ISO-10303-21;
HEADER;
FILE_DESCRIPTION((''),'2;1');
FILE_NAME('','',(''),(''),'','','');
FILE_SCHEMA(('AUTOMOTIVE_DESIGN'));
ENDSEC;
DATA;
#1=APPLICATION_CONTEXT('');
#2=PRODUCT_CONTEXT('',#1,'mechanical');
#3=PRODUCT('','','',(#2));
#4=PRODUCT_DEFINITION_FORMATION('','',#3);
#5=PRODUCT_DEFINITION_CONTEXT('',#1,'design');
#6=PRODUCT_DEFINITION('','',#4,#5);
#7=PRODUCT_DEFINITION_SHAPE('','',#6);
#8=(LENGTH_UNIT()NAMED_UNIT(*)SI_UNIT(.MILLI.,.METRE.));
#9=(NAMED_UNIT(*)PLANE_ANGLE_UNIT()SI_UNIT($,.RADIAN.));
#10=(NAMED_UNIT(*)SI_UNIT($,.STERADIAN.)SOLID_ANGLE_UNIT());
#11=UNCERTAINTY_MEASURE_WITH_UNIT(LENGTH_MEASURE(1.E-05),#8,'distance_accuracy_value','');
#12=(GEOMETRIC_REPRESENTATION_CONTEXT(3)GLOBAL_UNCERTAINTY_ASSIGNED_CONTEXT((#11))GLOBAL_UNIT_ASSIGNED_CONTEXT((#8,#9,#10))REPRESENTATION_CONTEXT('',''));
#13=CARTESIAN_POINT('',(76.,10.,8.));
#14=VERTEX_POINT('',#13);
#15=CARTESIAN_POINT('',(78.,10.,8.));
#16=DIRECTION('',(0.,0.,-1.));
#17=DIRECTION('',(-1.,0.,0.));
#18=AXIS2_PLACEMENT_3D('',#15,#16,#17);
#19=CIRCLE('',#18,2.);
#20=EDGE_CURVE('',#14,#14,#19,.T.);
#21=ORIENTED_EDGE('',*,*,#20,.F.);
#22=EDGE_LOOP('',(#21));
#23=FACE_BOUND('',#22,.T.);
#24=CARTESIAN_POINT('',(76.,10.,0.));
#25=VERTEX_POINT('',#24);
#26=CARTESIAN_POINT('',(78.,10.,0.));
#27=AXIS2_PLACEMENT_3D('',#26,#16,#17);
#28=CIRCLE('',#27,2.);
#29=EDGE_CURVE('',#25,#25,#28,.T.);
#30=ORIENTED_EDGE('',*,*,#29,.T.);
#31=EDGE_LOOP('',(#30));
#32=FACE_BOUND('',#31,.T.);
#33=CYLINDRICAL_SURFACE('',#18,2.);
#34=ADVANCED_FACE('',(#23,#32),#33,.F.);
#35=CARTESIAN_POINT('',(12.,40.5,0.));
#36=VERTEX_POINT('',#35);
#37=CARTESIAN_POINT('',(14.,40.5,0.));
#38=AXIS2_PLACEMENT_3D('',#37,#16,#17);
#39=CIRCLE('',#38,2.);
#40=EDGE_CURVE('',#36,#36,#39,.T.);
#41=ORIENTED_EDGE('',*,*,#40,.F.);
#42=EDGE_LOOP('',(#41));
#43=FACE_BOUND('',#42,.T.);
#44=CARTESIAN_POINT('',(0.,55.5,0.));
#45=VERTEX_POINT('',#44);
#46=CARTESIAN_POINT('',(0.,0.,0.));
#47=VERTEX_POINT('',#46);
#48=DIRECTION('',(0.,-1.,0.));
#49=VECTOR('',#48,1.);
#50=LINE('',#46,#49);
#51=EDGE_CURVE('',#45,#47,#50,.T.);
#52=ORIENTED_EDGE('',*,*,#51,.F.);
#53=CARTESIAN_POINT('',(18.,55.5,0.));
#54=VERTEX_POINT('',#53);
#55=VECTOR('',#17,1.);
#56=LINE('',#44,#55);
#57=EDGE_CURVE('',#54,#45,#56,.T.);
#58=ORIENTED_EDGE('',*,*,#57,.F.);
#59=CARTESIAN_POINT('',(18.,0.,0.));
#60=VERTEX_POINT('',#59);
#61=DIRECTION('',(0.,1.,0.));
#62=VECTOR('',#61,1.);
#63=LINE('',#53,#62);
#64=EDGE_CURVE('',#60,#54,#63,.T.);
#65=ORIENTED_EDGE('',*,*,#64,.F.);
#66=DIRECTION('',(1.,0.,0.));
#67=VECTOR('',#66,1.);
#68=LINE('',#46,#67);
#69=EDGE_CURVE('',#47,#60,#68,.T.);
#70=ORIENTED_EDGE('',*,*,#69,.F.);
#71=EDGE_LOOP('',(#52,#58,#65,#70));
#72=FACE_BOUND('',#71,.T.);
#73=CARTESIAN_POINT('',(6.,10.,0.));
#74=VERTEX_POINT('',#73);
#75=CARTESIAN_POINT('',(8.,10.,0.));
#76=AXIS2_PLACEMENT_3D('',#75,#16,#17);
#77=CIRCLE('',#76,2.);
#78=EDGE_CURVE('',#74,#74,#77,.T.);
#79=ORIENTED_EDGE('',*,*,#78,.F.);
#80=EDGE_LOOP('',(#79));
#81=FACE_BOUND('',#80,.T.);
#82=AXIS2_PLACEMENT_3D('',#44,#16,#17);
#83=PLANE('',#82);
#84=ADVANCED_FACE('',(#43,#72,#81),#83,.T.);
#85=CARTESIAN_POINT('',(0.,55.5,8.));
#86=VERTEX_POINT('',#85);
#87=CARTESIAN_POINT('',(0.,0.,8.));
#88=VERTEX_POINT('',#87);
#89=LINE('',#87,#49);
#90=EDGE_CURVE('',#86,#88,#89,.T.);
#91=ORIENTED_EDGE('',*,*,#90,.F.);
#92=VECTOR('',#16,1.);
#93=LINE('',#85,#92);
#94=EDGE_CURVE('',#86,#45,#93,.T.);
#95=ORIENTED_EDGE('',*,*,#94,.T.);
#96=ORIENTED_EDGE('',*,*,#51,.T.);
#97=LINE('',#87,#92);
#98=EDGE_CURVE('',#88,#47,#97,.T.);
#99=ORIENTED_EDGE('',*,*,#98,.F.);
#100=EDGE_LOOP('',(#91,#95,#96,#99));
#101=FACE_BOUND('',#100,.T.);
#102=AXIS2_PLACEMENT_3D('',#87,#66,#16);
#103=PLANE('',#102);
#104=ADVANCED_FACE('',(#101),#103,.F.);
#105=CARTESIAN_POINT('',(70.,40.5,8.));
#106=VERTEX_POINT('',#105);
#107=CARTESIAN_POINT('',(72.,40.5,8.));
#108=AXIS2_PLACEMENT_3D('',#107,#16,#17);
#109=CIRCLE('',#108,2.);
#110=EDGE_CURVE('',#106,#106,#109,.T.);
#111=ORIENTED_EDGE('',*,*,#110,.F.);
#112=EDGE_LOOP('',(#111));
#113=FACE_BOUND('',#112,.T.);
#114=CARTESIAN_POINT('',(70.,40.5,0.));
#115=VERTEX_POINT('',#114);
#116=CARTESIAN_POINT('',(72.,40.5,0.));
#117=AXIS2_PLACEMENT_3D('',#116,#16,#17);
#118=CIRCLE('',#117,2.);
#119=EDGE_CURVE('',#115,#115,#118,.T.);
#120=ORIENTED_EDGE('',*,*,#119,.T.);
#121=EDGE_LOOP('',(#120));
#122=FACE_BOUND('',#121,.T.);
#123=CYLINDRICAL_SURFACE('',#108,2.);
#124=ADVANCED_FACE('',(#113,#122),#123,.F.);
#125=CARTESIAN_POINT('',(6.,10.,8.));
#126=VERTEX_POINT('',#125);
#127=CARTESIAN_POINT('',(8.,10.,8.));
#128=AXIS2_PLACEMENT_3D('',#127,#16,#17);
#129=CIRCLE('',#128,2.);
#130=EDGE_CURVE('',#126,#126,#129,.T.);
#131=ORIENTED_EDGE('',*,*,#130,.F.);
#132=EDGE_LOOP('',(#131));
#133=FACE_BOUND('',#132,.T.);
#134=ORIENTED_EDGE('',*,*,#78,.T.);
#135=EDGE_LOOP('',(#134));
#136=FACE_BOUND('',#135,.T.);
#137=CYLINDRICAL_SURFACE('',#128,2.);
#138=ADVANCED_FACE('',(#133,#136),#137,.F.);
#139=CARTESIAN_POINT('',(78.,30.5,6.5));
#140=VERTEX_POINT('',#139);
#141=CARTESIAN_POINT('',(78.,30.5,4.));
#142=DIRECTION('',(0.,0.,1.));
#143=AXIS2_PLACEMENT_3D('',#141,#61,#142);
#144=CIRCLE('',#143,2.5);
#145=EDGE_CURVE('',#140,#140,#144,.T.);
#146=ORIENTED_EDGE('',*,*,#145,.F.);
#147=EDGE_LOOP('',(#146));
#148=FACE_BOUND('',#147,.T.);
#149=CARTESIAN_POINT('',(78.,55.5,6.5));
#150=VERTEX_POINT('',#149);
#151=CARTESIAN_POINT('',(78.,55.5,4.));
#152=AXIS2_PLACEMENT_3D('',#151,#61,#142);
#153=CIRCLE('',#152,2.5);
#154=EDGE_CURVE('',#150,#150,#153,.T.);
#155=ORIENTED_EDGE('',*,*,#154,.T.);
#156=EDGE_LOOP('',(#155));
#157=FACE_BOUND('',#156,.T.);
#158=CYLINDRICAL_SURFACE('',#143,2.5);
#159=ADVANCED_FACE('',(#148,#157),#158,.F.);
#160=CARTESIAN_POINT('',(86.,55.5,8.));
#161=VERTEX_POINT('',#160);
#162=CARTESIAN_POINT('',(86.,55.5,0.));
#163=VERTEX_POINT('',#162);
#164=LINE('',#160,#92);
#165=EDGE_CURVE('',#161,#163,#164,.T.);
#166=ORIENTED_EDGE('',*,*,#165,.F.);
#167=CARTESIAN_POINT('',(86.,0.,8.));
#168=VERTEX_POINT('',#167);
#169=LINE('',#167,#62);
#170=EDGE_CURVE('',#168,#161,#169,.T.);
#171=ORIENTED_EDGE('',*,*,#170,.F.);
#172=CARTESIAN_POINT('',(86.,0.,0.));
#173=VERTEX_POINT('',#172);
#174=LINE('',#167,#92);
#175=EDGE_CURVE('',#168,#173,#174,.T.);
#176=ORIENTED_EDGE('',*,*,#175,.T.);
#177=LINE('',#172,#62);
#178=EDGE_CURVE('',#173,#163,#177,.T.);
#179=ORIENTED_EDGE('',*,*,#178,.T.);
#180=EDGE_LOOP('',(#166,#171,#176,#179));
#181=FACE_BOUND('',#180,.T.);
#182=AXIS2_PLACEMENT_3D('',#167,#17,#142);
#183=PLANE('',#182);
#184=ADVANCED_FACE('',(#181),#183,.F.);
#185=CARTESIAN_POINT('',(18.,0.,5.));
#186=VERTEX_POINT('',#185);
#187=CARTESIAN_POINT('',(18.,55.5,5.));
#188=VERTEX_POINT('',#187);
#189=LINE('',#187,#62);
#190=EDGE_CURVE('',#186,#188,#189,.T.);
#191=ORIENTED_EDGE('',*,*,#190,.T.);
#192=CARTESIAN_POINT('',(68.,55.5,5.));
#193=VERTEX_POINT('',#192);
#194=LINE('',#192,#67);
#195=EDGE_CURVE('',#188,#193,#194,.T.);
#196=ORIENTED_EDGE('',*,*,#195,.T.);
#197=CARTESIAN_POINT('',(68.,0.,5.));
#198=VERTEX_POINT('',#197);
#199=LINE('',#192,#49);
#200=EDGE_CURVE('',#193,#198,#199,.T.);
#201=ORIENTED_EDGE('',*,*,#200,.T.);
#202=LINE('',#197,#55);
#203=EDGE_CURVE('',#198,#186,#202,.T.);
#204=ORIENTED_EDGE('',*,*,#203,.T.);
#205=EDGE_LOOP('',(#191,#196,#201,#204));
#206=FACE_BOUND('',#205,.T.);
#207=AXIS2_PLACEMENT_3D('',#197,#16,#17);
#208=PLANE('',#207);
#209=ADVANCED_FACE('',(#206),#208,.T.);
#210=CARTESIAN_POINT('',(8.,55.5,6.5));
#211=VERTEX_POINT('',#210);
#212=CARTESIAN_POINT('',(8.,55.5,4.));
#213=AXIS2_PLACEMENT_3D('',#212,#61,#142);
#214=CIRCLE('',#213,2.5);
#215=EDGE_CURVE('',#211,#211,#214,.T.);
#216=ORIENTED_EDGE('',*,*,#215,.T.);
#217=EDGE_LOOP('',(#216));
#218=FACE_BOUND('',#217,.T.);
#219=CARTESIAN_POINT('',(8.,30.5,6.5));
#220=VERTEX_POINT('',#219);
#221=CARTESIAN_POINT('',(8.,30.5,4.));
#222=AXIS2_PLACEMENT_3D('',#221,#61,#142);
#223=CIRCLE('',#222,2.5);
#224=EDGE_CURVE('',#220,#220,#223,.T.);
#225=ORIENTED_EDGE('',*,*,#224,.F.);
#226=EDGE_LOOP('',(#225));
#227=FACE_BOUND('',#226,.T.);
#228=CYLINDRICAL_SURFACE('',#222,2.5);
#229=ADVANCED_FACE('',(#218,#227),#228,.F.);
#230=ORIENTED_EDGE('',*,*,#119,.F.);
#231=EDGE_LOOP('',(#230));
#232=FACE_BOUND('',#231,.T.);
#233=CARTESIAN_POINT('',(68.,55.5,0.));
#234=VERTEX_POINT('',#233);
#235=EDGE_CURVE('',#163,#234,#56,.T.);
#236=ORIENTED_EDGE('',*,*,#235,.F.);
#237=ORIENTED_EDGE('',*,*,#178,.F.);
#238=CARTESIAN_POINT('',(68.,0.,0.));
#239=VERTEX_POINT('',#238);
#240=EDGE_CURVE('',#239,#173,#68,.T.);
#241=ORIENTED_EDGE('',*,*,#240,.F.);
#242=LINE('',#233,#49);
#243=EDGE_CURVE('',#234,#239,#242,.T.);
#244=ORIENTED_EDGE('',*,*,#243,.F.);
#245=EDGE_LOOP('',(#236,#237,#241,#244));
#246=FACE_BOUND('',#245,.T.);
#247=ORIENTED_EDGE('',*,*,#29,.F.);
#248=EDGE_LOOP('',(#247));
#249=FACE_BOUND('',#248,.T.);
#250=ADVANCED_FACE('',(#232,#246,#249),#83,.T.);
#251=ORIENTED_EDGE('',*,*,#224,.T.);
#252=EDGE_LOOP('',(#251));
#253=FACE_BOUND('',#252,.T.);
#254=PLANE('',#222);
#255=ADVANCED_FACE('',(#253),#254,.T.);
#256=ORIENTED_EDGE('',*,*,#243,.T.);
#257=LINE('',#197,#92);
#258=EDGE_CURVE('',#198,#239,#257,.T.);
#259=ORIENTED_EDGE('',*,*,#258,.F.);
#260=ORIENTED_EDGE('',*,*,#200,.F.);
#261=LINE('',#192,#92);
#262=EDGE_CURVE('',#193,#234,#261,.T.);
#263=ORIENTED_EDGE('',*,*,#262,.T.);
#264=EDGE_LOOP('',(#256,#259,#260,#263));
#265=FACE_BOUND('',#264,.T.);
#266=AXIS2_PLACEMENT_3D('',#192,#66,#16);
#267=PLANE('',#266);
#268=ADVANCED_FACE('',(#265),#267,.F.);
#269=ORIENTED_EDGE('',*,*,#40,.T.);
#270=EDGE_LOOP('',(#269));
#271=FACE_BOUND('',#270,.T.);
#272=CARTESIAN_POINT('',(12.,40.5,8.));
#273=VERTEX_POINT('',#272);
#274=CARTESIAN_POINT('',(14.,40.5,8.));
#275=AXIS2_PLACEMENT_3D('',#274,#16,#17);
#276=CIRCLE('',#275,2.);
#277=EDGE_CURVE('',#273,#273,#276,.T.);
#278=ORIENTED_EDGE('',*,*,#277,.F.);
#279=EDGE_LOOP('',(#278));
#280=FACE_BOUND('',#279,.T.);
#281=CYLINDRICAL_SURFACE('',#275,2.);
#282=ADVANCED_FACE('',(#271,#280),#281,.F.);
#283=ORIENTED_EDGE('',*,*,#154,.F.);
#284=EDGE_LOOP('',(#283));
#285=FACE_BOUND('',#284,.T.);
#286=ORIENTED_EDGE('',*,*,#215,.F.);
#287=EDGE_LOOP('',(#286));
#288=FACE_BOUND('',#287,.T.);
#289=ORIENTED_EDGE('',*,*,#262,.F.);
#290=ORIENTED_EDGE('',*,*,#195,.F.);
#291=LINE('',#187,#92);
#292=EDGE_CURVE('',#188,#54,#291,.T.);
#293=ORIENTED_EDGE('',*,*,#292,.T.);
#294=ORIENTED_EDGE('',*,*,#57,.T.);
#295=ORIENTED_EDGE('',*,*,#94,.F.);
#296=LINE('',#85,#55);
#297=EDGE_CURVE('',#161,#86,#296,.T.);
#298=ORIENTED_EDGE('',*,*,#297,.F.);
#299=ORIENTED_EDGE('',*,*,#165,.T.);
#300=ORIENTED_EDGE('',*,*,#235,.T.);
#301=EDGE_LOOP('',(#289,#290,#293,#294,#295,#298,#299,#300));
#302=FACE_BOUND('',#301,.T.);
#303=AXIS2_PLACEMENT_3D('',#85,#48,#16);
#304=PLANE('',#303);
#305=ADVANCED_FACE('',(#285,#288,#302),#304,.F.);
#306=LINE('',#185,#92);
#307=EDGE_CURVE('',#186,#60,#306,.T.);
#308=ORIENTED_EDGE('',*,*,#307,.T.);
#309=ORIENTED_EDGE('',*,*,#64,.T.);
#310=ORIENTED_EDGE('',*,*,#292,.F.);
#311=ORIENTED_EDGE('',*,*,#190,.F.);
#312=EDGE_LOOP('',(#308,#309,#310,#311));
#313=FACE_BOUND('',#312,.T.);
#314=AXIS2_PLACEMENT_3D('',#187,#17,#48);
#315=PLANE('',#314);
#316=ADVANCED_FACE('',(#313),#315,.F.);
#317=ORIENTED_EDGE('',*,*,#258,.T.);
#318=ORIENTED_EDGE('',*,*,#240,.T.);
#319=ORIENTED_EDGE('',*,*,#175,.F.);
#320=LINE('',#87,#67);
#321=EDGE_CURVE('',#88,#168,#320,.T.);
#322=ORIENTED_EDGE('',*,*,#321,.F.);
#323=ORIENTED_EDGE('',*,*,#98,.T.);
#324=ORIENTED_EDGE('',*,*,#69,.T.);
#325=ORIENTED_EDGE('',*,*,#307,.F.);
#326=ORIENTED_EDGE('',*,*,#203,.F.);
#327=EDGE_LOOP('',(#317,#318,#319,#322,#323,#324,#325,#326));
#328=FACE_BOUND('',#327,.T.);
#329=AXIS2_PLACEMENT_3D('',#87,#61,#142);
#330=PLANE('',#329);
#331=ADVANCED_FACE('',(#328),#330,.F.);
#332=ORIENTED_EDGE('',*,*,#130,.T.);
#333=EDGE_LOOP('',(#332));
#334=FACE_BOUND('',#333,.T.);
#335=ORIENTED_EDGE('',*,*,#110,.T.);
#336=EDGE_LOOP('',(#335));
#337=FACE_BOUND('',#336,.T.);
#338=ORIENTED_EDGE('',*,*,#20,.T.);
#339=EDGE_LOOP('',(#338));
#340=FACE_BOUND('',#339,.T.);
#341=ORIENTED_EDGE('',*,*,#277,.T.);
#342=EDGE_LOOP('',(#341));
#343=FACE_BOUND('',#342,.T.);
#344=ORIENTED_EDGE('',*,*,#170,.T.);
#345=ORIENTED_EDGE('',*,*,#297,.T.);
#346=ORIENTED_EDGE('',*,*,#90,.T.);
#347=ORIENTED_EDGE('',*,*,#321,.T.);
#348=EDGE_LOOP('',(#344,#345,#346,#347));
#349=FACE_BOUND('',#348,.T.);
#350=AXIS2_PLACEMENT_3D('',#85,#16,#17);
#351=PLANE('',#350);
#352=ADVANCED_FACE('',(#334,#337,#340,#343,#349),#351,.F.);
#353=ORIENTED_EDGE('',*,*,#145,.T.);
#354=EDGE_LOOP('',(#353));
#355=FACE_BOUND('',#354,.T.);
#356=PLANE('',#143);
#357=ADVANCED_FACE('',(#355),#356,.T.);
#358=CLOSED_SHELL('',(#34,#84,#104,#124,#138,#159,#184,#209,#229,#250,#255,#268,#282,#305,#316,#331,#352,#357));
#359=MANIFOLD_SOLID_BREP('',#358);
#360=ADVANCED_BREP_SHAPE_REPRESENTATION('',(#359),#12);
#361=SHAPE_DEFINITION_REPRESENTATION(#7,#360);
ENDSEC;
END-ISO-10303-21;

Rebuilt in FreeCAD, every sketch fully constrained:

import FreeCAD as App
import Part
import Sketcher
from FreeCAD import Vector

doc = App.newDocument("Part")
body = doc.addObject("PartDesign::Body", "Body")

# Sketch on XY plane
sketch1 = body.newObject("Sketcher::SketchObject", "Sketch")
sketch1.AttachmentSupport = (doc.getObject("XY_Plane"), [""])
sketch1.MapMode = "FlatFace"
sketch1.addGeometry([
    Part.LineSegment(Vector(0, 56, 0), Vector(0, 0, 0)),
    Part.LineSegment(Vector(0, 0, 0), Vector(86, 0, 0)),
    Part.LineSegment(Vector(86, 0, 0), Vector(86, 56, 0)),
    Part.LineSegment(Vector(86, 56, 0), Vector(0, 56, 0)),
], False)
sketch1.addConstraint([
    Sketcher.Constraint("Coincident", 0, 2, 1, 1),
    Sketcher.Constraint("Coincident", 1, 2, 2, 1),
    Sketcher.Constraint("Coincident", 2, 2, 3, 1),
    Sketcher.Constraint("Coincident", 3, 2, 0, 1),
    Sketcher.Constraint("Vertical", 0),
    Sketcher.Constraint("Horizontal", 1),
    Sketcher.Constraint("Vertical", 2),
    Sketcher.Constraint("Horizontal", 3),
    Sketcher.Constraint("Coincident", 0, 2, -1, 1),
    Sketcher.Constraint("DistanceX", 1, 1, 1, 2, 86.0),
    Sketcher.Constraint("DistanceY", 0, 2, 0, 1, 55.5),
])
pad1 = body.newObject("PartDesign::Pad", "Pad")
pad1.Profile = sketch1
pad1.Length = 8

# Sketch on XZ plane
sketch2 = body.newObject("Sketcher::SketchObject", "Sketch001")
sketch2.AttachmentSupport = (doc.getObject("XZ_Plane"), [""])
sketch2.MapMode = "FlatFace"
sketch2.AttachmentOffset = App.Placement(Vector(0, 0, -55.5), App.Rotation())
sketch2.addGeometry([
    Part.Circle(Vector(78, 4, 0), Vector(0, 0, 1), 2.5),
    Part.Circle(Vector(8, 4, 0), Vector(0, 0, 1), 2.5),
], False)
sketch2.addConstraint([
    Sketcher.Constraint("Equal", 0, 1),
    Sketcher.Constraint("Horizontal", 0, 3, 1, 3),
    Sketcher.Constraint("Diameter", 0, 5.0),
    Sketcher.Constraint("DistanceX", -1, 1, 0, 3, 78.0),
    Sketcher.Constraint("DistanceY", -1, 1, 0, 3, 4.0),
    Sketcher.Constraint("DistanceX", -1, 1, 1, 3, 8.0),
])
pocket1 = body.newObject("PartDesign::Pocket", "Pocket")
pocket1.Profile = sketch2
pocket1.Length = 25
pocket1.Reversed = True

# Sketch on XY plane
sketch3 = body.newObject("Sketcher::SketchObject", "Sketch002")
sketch3.AttachmentSupport = (doc.getObject("XY_Plane"), [""])
sketch3.MapMode = "FlatFace"
sketch3.addGeometry([
    Part.LineSegment(Vector(68, 56, 0), Vector(68, 0, 0)),
    Part.LineSegment(Vector(68, 0, 0), Vector(18, 0, 0)),
    Part.LineSegment(Vector(18, 0, 0), Vector(18, 56, 0)),
    Part.LineSegment(Vector(18, 56, 0), Vector(68, 56, 0)),
], False)
sketch3.addConstraint([
    Sketcher.Constraint("Coincident", 0, 2, 1, 1),
    Sketcher.Constraint("Coincident", 1, 2, 2, 1),
    Sketcher.Constraint("Coincident", 2, 2, 3, 1),
    Sketcher.Constraint("Coincident", 3, 2, 0, 1),
    Sketcher.Constraint("Vertical", 0),
    Sketcher.Constraint("Horizontal", 1),
    Sketcher.Constraint("Vertical", 2),
    Sketcher.Constraint("Horizontal", 3),
    Sketcher.Constraint("PointOnObject", 0, 2, -1),
    Sketcher.Constraint("DistanceX", 1, 2, 1, 1, 50.0),
    Sketcher.Constraint("DistanceY", 0, 2, 0, 1, 55.5),
    Sketcher.Constraint("DistanceX", -1, 1, 0, 2, 68.0),
])
pocket2 = body.newObject("PartDesign::Pocket", "Pocket001")
pocket2.Profile = sketch3
pocket2.Length = 5
pocket2.Reversed = True

# Sketch on XY plane
sketch4 = body.newObject("Sketcher::SketchObject", "Sketch003")
sketch4.AttachmentSupport = (doc.getObject("XY_Plane"), [""])
sketch4.MapMode = "FlatFace"
sketch4.addGeometry([
    Part.Circle(Vector(72, 40.5, 0), Vector(0, 0, 1), 2),
    Part.Circle(Vector(78, 10, 0), Vector(0, 0, 1), 2),
    Part.Circle(Vector(14, 40.5, 0), Vector(0, 0, 1), 2),
    Part.Circle(Vector(8, 10, 0), Vector(0, 0, 1), 2),
], False)
sketch4.addConstraint([
    Sketcher.Constraint("Equal", 0, 1),
    Sketcher.Constraint("Equal", 1, 2),
    Sketcher.Constraint("Equal", 2, 3),
    Sketcher.Constraint("Horizontal", 0, 3, 2, 3),
    Sketcher.Constraint("Horizontal", 1, 3, 3, 3),
    Sketcher.Constraint("Diameter", 0, 4.0),
    Sketcher.Constraint("DistanceX", -1, 1, 0, 3, 72.0),
    Sketcher.Constraint("DistanceX", -1, 1, 1, 3, 78.0),
    Sketcher.Constraint("DistanceY", -1, 1, 1, 3, 10.0),
    Sketcher.Constraint("DistanceX", -1, 1, 2, 3, 14.0),
    Sketcher.Constraint("DistanceX", -1, 1, 3, 3, 8.0),
    Sketcher.Constraint("DistanceY", -1, 1, 0, 3, 40.5),
])
pocket3 = body.newObject("PartDesign::Pocket", "Pocket002")
pocket3.Profile = sketch4
pocket3.Type = "ThroughAll"
pocket3.Reversed = True

doc.recompute()
